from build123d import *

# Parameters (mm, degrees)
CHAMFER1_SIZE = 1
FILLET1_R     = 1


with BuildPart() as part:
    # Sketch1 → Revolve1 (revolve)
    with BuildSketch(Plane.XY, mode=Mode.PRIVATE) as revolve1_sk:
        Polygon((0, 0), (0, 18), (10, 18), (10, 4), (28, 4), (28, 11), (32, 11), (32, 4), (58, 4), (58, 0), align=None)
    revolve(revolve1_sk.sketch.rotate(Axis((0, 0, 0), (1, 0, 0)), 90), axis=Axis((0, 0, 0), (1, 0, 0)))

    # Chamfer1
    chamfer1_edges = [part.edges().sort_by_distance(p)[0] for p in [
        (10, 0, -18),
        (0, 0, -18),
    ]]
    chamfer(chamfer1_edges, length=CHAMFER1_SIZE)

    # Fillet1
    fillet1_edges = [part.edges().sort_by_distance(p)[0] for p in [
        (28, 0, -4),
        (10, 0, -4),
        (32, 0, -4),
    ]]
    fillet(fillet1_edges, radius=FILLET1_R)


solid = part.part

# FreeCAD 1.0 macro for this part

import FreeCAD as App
import Part
import Sketcher


def edges_at(feature, points):
    """Names of the edges that pass closest to the given points."""
    edges = feature.Shape.Edges
    near = lambda p: min(range(len(edges)), key=lambda i: edges[i].distToShape(Part.Vertex(*p))[0])
    return sorted({f"Edge{near(p) + 1}" for p in points})


def add_polygon(sketch, points):
    """Adds a closed chain of lines whose ends are joined by coincident constraints."""
    first, n = sketch.GeometryCount, len(points)
    for a, b in zip(points, points[1:] + points[:1]):
        sketch.addGeometry(Part.LineSegment(App.Vector(*a, 0), App.Vector(*b, 0)), False)
    for i in range(n):
        sketch.addConstraint(Sketcher.Constraint("Coincident", first + i, 2, first + (i + 1) % n, 1))

doc = App.newDocument("Part")
body = doc.addObject("PartDesign::Body", "Body")

sketch1 = body.newObject("Sketcher::SketchObject", "Sketch")
sketch1.AttachmentSupport = (doc.getObject("XY_Plane"), [""])
sketch1.MapMode = "FlatFace"
add_polygon(sketch1, [(0, 18), (0, 0), (58, 0), (58, 4), (32, 4), (32, 11), (28, 11), (28, 4), (10, 4), (10, 18)])
sketch1.addConstraint(Sketcher.Constraint("Vertical", 0))
sketch1.addConstraint(Sketcher.Constraint("Horizontal", 1))
sketch1.addConstraint(Sketcher.Constraint("Vertical", 2))
sketch1.addConstraint(Sketcher.Constraint("Horizontal", 3))
sketch1.addConstraint(Sketcher.Constraint("Vertical", 4))
sketch1.addConstraint(Sketcher.Constraint("Horizontal", 5))
sketch1.addConstraint(Sketcher.Constraint("Vertical", 6))
sketch1.addConstraint(Sketcher.Constraint("Horizontal", 7))
sketch1.addConstraint(Sketcher.Constraint("Vertical", 8))
sketch1.addConstraint(Sketcher.Constraint("Horizontal", 9))
sketch1.addConstraint(Sketcher.Constraint("Coincident", 0, 2, -1, 1))
sketch1.addConstraint(Sketcher.Constraint("Horizontal", 3, 2, 6, 2))
sketch1.addConstraint(Sketcher.Constraint("Equal", 7, 0))
sketch1.addConstraint(Sketcher.Constraint("Equal", 5, 2))
sketch1.addConstraint(Sketcher.Constraint("DistanceX", 1, 1, 1, 2, 58.0))
sketch1.addConstraint(Sketcher.Constraint("DistanceX", 3, 2, 3, 1, 26.0))
sketch1.addConstraint(Sketcher.Constraint("DistanceX", 5, 2, 5, 1, 4.0))
sketch1.addConstraint(Sketcher.Constraint("DistanceX", 7, 2, 7, 1, 18.0))
sketch1.addConstraint(Sketcher.Constraint("DistanceY", 4, 1, 4, 2, 7.0))
revolution = body.newObject("PartDesign::Revolution", "Revolution")
revolution.Profile = sketch1
revolution.ReferenceAxis = (sketch1, ["H_Axis"])
revolution.Angle = 360
doc.recompute()

chamfer = body.newObject("PartDesign::Chamfer", "Chamfer")
chamfer.Base = (revolution, edges_at(revolution, [(10, 0, -18), (0, 0, -18)]))
chamfer.Size = 1
doc.recompute()

fillet = body.newObject("PartDesign::Fillet", "Fillet")
fillet.Base = (chamfer, edges_at(chamfer, [(28, 0, -4), (10, 0, -4), (32, 0, -4)]))
fillet.Radius = 1

doc.recompute()
